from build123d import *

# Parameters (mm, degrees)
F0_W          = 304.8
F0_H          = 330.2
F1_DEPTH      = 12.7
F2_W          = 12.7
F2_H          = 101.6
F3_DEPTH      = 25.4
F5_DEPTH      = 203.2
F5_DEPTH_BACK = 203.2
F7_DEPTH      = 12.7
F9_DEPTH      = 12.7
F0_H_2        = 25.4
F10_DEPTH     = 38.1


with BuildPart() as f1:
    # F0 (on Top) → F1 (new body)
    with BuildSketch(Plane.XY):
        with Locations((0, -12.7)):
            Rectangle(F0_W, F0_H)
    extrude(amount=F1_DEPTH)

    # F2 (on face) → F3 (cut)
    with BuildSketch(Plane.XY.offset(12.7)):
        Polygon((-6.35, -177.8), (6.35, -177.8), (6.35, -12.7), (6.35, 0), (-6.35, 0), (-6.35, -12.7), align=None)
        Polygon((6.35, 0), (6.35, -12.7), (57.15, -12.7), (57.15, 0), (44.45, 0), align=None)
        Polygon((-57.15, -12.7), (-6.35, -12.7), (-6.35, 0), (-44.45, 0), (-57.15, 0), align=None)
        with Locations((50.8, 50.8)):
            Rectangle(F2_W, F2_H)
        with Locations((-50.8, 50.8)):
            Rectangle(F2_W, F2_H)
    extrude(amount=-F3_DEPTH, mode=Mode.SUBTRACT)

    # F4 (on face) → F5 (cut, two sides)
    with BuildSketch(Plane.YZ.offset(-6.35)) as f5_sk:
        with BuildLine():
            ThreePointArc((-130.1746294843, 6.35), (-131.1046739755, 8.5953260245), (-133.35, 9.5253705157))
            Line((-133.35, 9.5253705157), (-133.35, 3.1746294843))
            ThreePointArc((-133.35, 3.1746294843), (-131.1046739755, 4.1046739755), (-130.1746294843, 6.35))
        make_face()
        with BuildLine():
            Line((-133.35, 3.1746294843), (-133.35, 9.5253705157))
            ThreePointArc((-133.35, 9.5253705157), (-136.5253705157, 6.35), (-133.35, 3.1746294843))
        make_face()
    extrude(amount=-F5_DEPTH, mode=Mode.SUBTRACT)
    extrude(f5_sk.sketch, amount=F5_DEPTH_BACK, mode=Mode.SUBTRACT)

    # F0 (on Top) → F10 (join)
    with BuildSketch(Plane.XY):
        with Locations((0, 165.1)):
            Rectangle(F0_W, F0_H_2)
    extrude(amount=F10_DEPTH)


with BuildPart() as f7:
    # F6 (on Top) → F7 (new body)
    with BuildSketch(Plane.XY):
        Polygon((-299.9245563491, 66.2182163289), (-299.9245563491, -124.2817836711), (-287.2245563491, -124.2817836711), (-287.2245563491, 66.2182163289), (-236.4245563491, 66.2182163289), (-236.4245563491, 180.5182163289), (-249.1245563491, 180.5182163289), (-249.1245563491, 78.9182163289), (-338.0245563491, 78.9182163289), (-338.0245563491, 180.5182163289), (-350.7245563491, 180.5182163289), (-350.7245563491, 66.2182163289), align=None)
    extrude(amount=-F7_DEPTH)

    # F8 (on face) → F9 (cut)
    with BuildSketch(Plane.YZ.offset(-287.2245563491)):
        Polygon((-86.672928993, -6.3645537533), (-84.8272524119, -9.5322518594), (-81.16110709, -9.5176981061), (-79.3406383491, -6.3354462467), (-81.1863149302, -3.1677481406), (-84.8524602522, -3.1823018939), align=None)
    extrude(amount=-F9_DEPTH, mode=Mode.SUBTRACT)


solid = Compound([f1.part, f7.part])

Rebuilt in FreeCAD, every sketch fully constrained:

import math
import FreeCAD as App
import Part
import Sketcher
Q = App.Units.Quantity

doc = App.newDocument("Part")
body = doc.addObject("PartDesign::Body", "Body")

# Sketch on XY plane
sketch1 = body.newObject("Sketcher::SketchObject", "Sketch")
sketch1.AttachmentSupport = (doc.getObject("XY_Plane"), [""])
sketch1.MapMode = "FlatFace"
sketch1.addGeometry(Part.LineSegment(App.Vector(-152, 152, 0), App.Vector(-152, -178, 0)), False)
sketch1.addGeometry(Part.LineSegment(App.Vector(-152, -178, 0), App.Vector(152, -178, 0)), False)
sketch1.addGeometry(Part.LineSegment(App.Vector(152, -178, 0), App.Vector(152, 152, 0)), False)
sketch1.addGeometry(Part.LineSegment(App.Vector(152, 152, 0), App.Vector(-152, 152, 0)), False)
sketch1.addConstraint(Sketcher.Constraint("Coincident", 0, 2, 1, 1))
sketch1.addConstraint(Sketcher.Constraint("Coincident", 1, 2, 2, 1))
sketch1.addConstraint(Sketcher.Constraint("Coincident", 2, 2, 3, 1))
sketch1.addConstraint(Sketcher.Constraint("Coincident", 3, 2, 0, 1))
sketch1.addConstraint(Sketcher.Constraint("Vertical", 0))
sketch1.addConstraint(Sketcher.Constraint("Horizontal", 1))
sketch1.addConstraint(Sketcher.Constraint("Vertical", 2))
sketch1.addConstraint(Sketcher.Constraint("Horizontal", 3))
sketch1.addConstraint(Sketcher.Constraint("DistanceX", 1, 1, 1, 2, Q("12 in")))
sketch1.addConstraint(Sketcher.Constraint("DistanceY", 0, 2, 0, 1, Q("13 in")))
sketch1.addConstraint(Sketcher.Constraint("DistanceX", 0, 2, -1, 1, Q("6 in")))
sketch1.addConstraint(Sketcher.Constraint("DistanceY", 0, 2, -1, 1, Q("7 in")))
pad1 = body.newObject("PartDesign::Pad", "Pad")
pad1.Profile = sketch1
pad1.Length = Q("0.5 in")

# Sketch on XY plane
sketch2 = body.newObject("Sketcher::SketchObject", "Sketch001")
sketch2.AttachmentSupport = (doc.getObject("XY_Plane"), [""])
sketch2.MapMode = "FlatFace"
sketch2.AttachmentOffset = App.Placement(App.Vector(0, 0, 0.5 * 25.4), App.Rotation())
sketch2.addGeometry(Part.LineSegment(App.Vector(-6, -178, 0), App.Vector(6, -178, 0)), False)
sketch2.addGeometry(Part.LineSegment(App.Vector(6, -178, 0), App.Vector(6, -13, 0)), False)
sketch2.addGeometry(Part.LineSegment(App.Vector(6, -13, 0), App.Vector(57, -13, 0)), False)
sketch2.addGeometry(Part.LineSegment(App.Vector(57, -13, 0), App.Vector(57, 102, 0)), False)
sketch2.addGeometry(Part.LineSegment(App.Vector(57, 102, 0), App.Vector(44, 102, 0)), False)
sketch2.addGeometry(Part.LineSegment(App.Vector(44, 102, 0), App.Vector(44, 0, 0)), False)
sketch2.addGeometry(Part.LineSegment(App.Vector(44, 0, 0), App.Vector(-44, 0, 0)), False)
sketch2.addGeometry(Part.LineSegment(App.Vector(-44, 0, 0), App.Vector(-44, 102, 0)), False)
sketch2.addGeometry(Part.LineSegment(App.Vector(-44, 102, 0), App.Vector(-57, 102, 0)), False)
sketch2.addGeometry(Part.LineSegment(App.Vector(-57, 102, 0), App.Vector(-57, -13, 0)), False)
sketch2.addGeometry(Part.LineSegment(App.Vector(-57, -13, 0), App.Vector(-6, -13, 0)), False)
sketch2.addGeometry(Part.LineSegment(App.Vector(-6, -13, 0), App.Vector(-6, -178, 0)), False)
sketch2.addConstraint(Sketcher.Constraint("Coincident", 0, 2, 1, 1))
sketch2.addConstraint(Sketcher.Constraint("Coincident", 1, 2, 2, 1))
sketch2.addConstraint(Sketcher.Constraint("Coincident", 2, 2, 3, 1))
sketch2.addConstraint(Sketcher.Constraint("Coincident", 3, 2, 4, 1))
sketch2.addConstraint(Sketcher.Constraint("Coincident", 4, 2, 5, 1))
sketch2.addConstraint(Sketcher.Constraint("Coincident", 5, 2, 6, 1))
sketch2.addConstraint(Sketcher.Constraint("Coincident", 6, 2, 7, 1))
sketch2.addConstraint(Sketcher.Constraint("Coincident", 7, 2, 8, 1))
sketch2.addConstraint(Sketcher.Constraint("Coincident", 8, 2, 9, 1))
sketch2.addConstraint(Sketcher.Constraint("Coincident", 9, 2, 10, 1))
sketch2.addConstraint(Sketcher.Constraint("Coincident", 10, 2, 11, 1))
sketch2.addConstraint(Sketcher.Constraint("Coincident", 11, 2, 0, 1))
sketch2.addConstraint(Sketcher.Constraint("Horizontal", 0))
sketch2.addConstraint(Sketcher.Constraint("Vertical", 1))
sketch2.addConstraint(Sketcher.Constraint("Horizontal", 2))
sketch2.addConstraint(Sketcher.Constraint("Vertical", 3))
sketch2.addConstraint(Sketcher.Constraint("Horizontal", 4))
sketch2.addConstraint(Sketcher.Constraint("Vertical", 5))
sketch2.addConstraint(Sketcher.Constraint("Horizontal", 6))
sketch2.addConstraint(Sketcher.Constraint("Vertical", 7))
sketch2.addConstraint(Sketcher.Constraint("Horizontal", 8))
sketch2.addConstraint(Sketcher.Constraint("Vertical", 9))
sketch2.addConstraint(Sketcher.Constraint("Horizontal", 10))
sketch2.addConstraint(Sketcher.Constraint("Vertical", 11))
sketch2.addConstraint(Sketcher.Constraint("Symmetric", 5, 2, 6, 2, -1, 1))
sketch2.addConstraint(Sketcher.Constraint("Symmetric", 3, 2, 8, 2, -2))
sketch2.addConstraint(Sketcher.Constraint("Symmetric", 1, 2, 10, 2, -2))
sketch2.addConstraint(Sketcher.Constraint("Equal", 0, 4))
sketch2.addConstraint(Sketcher.Constraint("DistanceX", 2, 1, 2, 2, Q("2 in")))
sketch2.addConstraint(Sketcher.Constraint("DistanceY", 5, 2, 5, 1, Q("4 in")))
sketch2.addConstraint(Sketcher.Constraint("DistanceX", 0, 1, 0, 2, Q("0.5 in")))
sketch2.addConstraint(Sketcher.Constraint("DistanceY", 1, 1, 1, 2, Q("6.5 in")))
sketch2.addConstraint(Sketcher.Constraint("DistanceY", 3, 1, 3, 2, Q("4.5 in")))
pocket1 = body.newObject("PartDesign::Pocket", "Pocket")
pocket1.Profile = sketch2
pocket1.Length = Q("1 in")

# Sketch on YZ plane
sketch3 = body.newObject("Sketcher::SketchObject", "Sketch002")
sketch3.AttachmentSupport = (doc.getObject("YZ_Plane"), [""])
sketch3.MapMode = "FlatFace"
sketch3.AttachmentOffset = App.Placement(App.Vector(0, 0, -0.25 * 25.4), App.Rotation())
sketch3.addGeometry(Part.ArcOfCircle(Part.Circle(App.Vector(-133.3, 6.3, 0), App.Vector(0, 0, 1), 3.2), math.radians(0), math.radians(90)), False)
sketch3.addGeometry(Part.ArcOfCircle(Part.Circle(App.Vector(-133.3, 6.3, 0), App.Vector(0, 0, 1), 3.2), math.radians(90), math.radians(270)), False)
sketch3.addGeometry(Part.ArcOfCircle(Part.Circle(App.Vector(-133.3, 6.3, 0), App.Vector(0, 0, 1), 3.2), math.radians(-90), math.radians(0)), False)
sketch3.addConstraint(Sketcher.Constraint("Tangent", 0, 2, 1, 1))
sketch3.addConstraint(Sketcher.Constraint("Tangent", 1, 2, 2, 1))
sketch3.addConstraint(Sketcher.Constraint("Tangent", 2, 2, 0, 1))
sketch3.addConstraint(Sketcher.Constraint("Horizontal", 1, 3, 2, 2))
sketch3.addConstraint(Sketcher.Constraint("Vertical", 2, 3, 0, 2))
sketch3.addConstraint(Sketcher.Constraint("Vertical", 0, 2, 1, 2))
sketch3.addConstraint(Sketcher.Constraint("DistanceX", 0, 3, -1, 1, Q("5.25 in")))
sketch3.addConstraint(Sketcher.Constraint("DistanceY", -1, 1, 0, 3, Q("0.25 in")))
sketch3.addConstraint(Sketcher.Constraint("Radius", 0, 3.175371))
pocket2 = body.newObject("PartDesign::Pocket", "Pocket001")
pocket2.Profile = sketch3
pocket2.Type = "ThroughAll"
pocket2.Midplane = True

# Sketch on XY plane
sketch4 = body.newObject("Sketcher::SketchObject", "Sketch003")
sketch4.AttachmentSupport = (doc.getObject("XY_Plane"), [""])
sketch4.MapMode = "FlatFace"
sketch4.addGeometry(Part.LineSegment(App.Vector(-152, 178, 0), App.Vector(-152, 152, 0)), False)
sketch4.addGeometry(Part.LineSegment(App.Vector(-152, 152, 0), App.Vector(152, 152, 0)), False)
sketch4.addGeometry(Part.LineSegment(App.Vector(152, 152, 0), App.Vector(152, 178, 0)), False)
sketch4.addGeometry(Part.LineSegment(App.Vector(152, 178, 0), App.Vector(-152, 178, 0)), False)
sketch4.addConstraint(Sketcher.Constraint("Coincident", 0, 2, 1, 1))
sketch4.addConstraint(Sketcher.Constraint("Coincident", 1, 2, 2, 1))
sketch4.addConstraint(Sketcher.Constraint("Coincident", 2, 2, 3, 1))
sketch4.addConstraint(Sketcher.Constraint("Coincident", 3, 2, 0, 1))
sketch4.addConstraint(Sketcher.Constraint("Vertical", 0))
sketch4.addConstraint(Sketcher.Constraint("Horizontal", 1))
sketch4.addConstraint(Sketcher.Constraint("Vertical", 2))
sketch4.addConstraint(Sketcher.Constraint("Horizontal", 3))
sketch4.addConstraint(Sketcher.Constraint("DistanceX", 1, 1, 1, 2, Q("12 in")))
sketch4.addConstraint(Sketcher.Constraint("DistanceY", 0, 2, 0, 1, Q("1 in")))
sketch4.addConstraint(Sketcher.Constraint("DistanceX", 0, 2, -1, 1, Q("6 in")))
sketch4.addConstraint(Sketcher.Constraint("DistanceY", -1, 1, 0, 2, Q("6 in")))
pad2 = body.newObject("PartDesign::Pad", "Pad001")
pad2.Profile = sketch4
pad2.Length = Q("1.5 in")
body2 = doc.addObject("PartDesign::Body", "Body001")

# Sketch on XY plane
sketch5 = body2.newObject("Sketcher::SketchObject", "Sketch004")
sketch5.AttachmentSupport = (doc.getObject("XY_Plane001"), [""])
sketch5.MapMode = "FlatFace"
sketch5.addGeometry(Part.LineSegment(App.Vector(-300, 66, 0), App.Vector(-300, -124, 0)), False)
sketch5.addGeometry(Part.LineSegment(App.Vector(-300, -124, 0), App.Vector(-287, -124, 0)), False)
sketch5.addGeometry(Part.LineSegment(App.Vector(-287, -124, 0), App.Vector(-287, 66, 0)), False)
sketch5.addGeometry(Part.LineSegment(App.Vector(-287, 66, 0), App.Vector(-236, 66, 0)), False)
sketch5.addGeometry(Part.LineSegment(App.Vector(-236, 66, 0), App.Vector(-236, 181, 0)), False)
sketch5.addGeometry(Part.LineSegment(App.Vector(-236, 181, 0), App.Vector(-249, 181, 0)), False)
sketch5.addGeometry(Part.LineSegment(App.Vector(-249, 181, 0), App.Vector(-249, 79, 0)), False)
sketch5.addGeometry(Part.LineSegment(App.Vector(-249, 79, 0), App.Vector(-338, 79, 0)), False)
sketch5.addGeometry(Part.LineSegment(App.Vector(-338, 79, 0), App.Vector(-338, 181, 0)), False)
sketch5.addGeometry(Part.LineSegment(App.Vector(-338, 181, 0), App.Vector(-351, 181, 0)), False)
sketch5.addGeometry(Part.LineSegment(App.Vector(-351, 181, 0), App.Vector(-351, 66, 0)), False)
sketch5.addGeometry(Part.LineSegment(App.Vector(-351, 66, 0), App.Vector(-300, 66, 0)), False)
sketch5.addConstraint(Sketcher.Constraint("Coincident", 0, 2, 1, 1))
sketch5.addConstraint(Sketcher.Constraint("Coincident", 1, 2, 2, 1))
sketch5.addConstraint(Sketcher.Constraint("Coincident", 2, 2, 3, 1))
sketch5.addConstraint(Sketcher.Constraint("Coincident", 3, 2, 4, 1))
sketch5.addConstraint(Sketcher.Constraint("Coincident", 4, 2, 5, 1))
sketch5.addConstraint(Sketcher.Constraint("Coincident", 5, 2, 6, 1))
sketch5.addConstraint(Sketcher.Constraint("Coincident", 6, 2, 7, 1))
sketch5.addConstraint(Sketcher.Constraint("Coincident", 7, 2, 8, 1))
sketch5.addConstraint(Sketcher.Constraint("Coincident", 8, 2, 9, 1))
sketch5.addConstraint(Sketcher.Constraint("Coincident", 9, 2, 10, 1))
sketch5.addConstraint(Sketcher.Constraint("Coincident", 10, 2, 11, 1))
sketch5.addConstraint(Sketcher.Constraint("Coincident", 11, 2, 0, 1))
sketch5.addConstraint(Sketcher.Constraint("Vertical", 0))
sketch5.addConstraint(Sketcher.Constraint("Horizontal", 1))
sketch5.addConstraint(Sketcher.Constraint("Vertical", 2))
sketch5.addConstraint(Sketcher.Constraint("Horizontal", 3))
sketch5.addConstraint(Sketcher.Constraint("Vertical", 4))
sketch5.addConstraint(Sketcher.Constraint("Horizontal", 5))
sketch5.addConstraint(Sketcher.Constraint("Vertical", 6))
sketch5.addConstraint(Sketcher.Constraint("Horizontal", 7))
sketch5.addConstraint(Sketcher.Constraint("Vertical", 8))
sketch5.addConstraint(Sketcher.Constraint("Horizontal", 9))
sketch5.addConstraint(Sketcher.Constraint("Vertical", 10))
sketch5.addConstraint(Sketcher.Constraint("Horizontal", 11))
sketch5.addConstraint(Sketcher.Constraint("Horizontal", 5, 2, 8, 2))
sketch5.addConstraint(Sketcher.Constraint("Horizontal", 3, 2, 10, 2))
sketch5.addConstraint(Sketcher.Constraint("Equal", 1, 5))
sketch5.addConstraint(Sketcher.Constraint("Equal", 5, 9))
sketch5.addConstraint(Sketcher.Constraint("Equal", 3, 11))
sketch5.addConstraint(Sketcher.Constraint("DistanceX", 3, 1, 3, 2, Q("2 in")))
sketch5.addConstraint(Sketcher.Constraint("DistanceY", 6, 2, 6, 1, Q("4 in")))
sketch5.addConstraint(Sketcher.Constraint("DistanceX", 1, 1, 1, 2, Q("0.5 in")))
sketch5.addConstraint(Sketcher.Constraint("DistanceY", 0, 2, 0, 1, Q("7.5 in")))
sketch5.addConstraint(Sketcher.Constraint("DistanceY", 4, 1, 4, 2, Q("4.5 in")))
sketch5.addConstraint(Sketcher.Constraint("DistanceX", 0, 2, -1, 1, 299.924556))
sketch5.addConstraint(Sketcher.Constraint("DistanceY", 0, 2, -1, 1, 124.281784))
pad3 = body2.newObject("PartDesign::Pad", "Pad002")
pad3.Profile = sketch5
pad3.Length = Q("0.5 in")
pad3.Reversed = True

# Sketch on YZ plane
sketch6 = body2.newObject("Sketcher::SketchObject", "Sketch005")
sketch6.AttachmentSupport = (doc.getObject("YZ_Plane001"), [""])
sketch6.MapMode = "FlatFace"
sketch6.AttachmentOffset = App.Placement(App.Vector(0, 0, -287.224556), App.Rotation())
sketch6.addGeometry(Part.LineSegment(App.Vector(-86.7, -6.4, 0), App.Vector(-84.8, -9.5, 0)), False)
sketch6.addGeometry(Part.LineSegment(App.Vector(-84.8, -9.5, 0), App.Vector(-81.2, -9.5, 0)), False)
sketch6.addGeometry(Part.LineSegment(App.Vector(-81.2, -9.5, 0), App.Vector(-79.3, -6.3, 0)), False)
sketch6.addGeometry(Part.LineSegment(App.Vector(-79.3, -6.3, 0), App.Vector(-81.2, -3.2, 0)), False)
sketch6.addGeometry(Part.LineSegment(App.Vector(-81.2, -3.2, 0), App.Vector(-84.9, -3.2, 0)), False)
sketch6.addGeometry(Part.LineSegment(App.Vector(-84.9, -3.2, 0), App.Vector(-86.7, -6.4, 0)), False)
sketch6.addConstraint(Sketcher.Constraint("Coincident", 0, 2, 1, 1))
sketch6.addConstraint(Sketcher.Constraint("Coincident", 1, 2, 2, 1))
sketch6.addConstraint(Sketcher.Constraint("Coincident", 2, 2, 3, 1))
sketch6.addConstraint(Sketcher.Constraint("Coincident", 3, 2, 4, 1))
sketch6.addConstraint(Sketcher.Constraint("Coincident", 4, 2, 5, 1))
sketch6.addConstraint(Sketcher.Constraint("Coincident", 5, 2, 0, 1))
sketch6.addConstraint(Sketcher.Constraint("Parallel", 0, 3))
sketch6.addConstraint(Sketcher.Constraint("Parallel", 1, 4))
sketch6.addConstraint(Sketcher.Constraint("Parallel", 2, 5))
sketch6.addConstraint(Sketcher.Constraint("Equal", 0, 1))
sketch6.addConstraint(Sketcher.Constraint("Equal", 1, 2))
sketch6.addConstraint(Sketcher.Constraint("Equal", 2, 3))
sketch6.addConstraint(Sketcher.Constraint("DistanceY", 1, 2, -1, 1, 9.517698))
sketch6.addConstraint(Sketcher.Constraint("DistanceY", 4, 2, -1, 1, 3.182302))
sketch6.addConstraint(Sketcher.Constraint("DistanceY", 2, 2, 3, 2, 3.167698))
sketch6.addConstraint(Sketcher.Constraint("DistanceY", 0, 2, -1, 1, 9.532252))
sketch6.addConstraint(Sketcher.Constraint("DistanceX", 2, 2, -1, 1, 79.340638))
sketch6.addConstraint(Sketcher.Constraint("DistanceX", 4, 2, -1, 1, 84.85246))
pocket3 = body2.newObject("PartDesign::Pocket", "Pocket002")
pocket3.Profile = sketch6
pocket3.Length = Q("0.5 in")

doc.recompute()
